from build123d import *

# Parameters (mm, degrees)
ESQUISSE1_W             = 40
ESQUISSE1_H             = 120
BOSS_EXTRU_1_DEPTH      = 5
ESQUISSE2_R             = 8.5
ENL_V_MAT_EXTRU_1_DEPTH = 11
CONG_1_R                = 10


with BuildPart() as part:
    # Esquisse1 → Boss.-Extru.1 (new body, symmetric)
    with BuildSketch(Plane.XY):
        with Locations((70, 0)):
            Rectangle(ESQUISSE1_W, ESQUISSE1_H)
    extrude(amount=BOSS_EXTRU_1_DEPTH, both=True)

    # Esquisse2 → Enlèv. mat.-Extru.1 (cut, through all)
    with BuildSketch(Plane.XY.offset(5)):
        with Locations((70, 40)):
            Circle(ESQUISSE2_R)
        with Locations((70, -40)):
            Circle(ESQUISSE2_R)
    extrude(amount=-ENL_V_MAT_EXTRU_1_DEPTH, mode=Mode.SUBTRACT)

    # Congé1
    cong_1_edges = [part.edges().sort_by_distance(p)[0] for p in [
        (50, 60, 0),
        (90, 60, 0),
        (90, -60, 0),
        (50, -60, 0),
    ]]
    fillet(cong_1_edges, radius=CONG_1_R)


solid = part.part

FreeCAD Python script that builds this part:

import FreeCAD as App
import Part
import Sketcher
from FreeCAD import Vector
Q = App.Units.Quantity


def edges_at(feature, points):
    """Names of the edges that pass closest to the given points."""
    edges = feature.Shape.Edges
    near = lambda p: min(range(len(edges)), key=lambda i: edges[i].distToShape(Part.Vertex(*p))[0])
    return sorted({f"Edge{near(p) + 1}" for p in points})


def add_polygon(sketch, points):
    """Adds a closed chain of lines whose ends are joined by coincident constraints."""
    first, n = sketch.GeometryCount, len(points)
    for a, b in zip(points, points[1:] + points[:1]):
        sketch.addGeometry(Part.LineSegment(App.Vector(*a, 0), App.Vector(*b, 0)), False)
    for i in range(n):
        sketch.addConstraint(Sketcher.Constraint("Coincident", first + i, 2, first + (i + 1) % n, 1))

doc = App.newDocument("Part")
body = doc.addObject("PartDesign::Body", "Body")

sketch1 = doc.addObject("Sketcher::SketchObject", "Sketch")
body.addObject(sketch1)
sketch1.AttachmentSupport = (doc.XY_Plane, [""])
sketch1.MapMode = "FlatFace"
add_polygon(sketch1, [(50, 60), (50, -60), (90, -60), (90, 60)])
sketch1.addConstraint(Sketcher.Constraint("Vertical", 0))
sketch1.addConstraint(Sketcher.Constraint("Horizontal", 1))
sketch1.addConstraint(Sketcher.Constraint("Vertical", 2))
sketch1.addConstraint(Sketcher.Constraint("Horizontal", 3))
sketch1.addConstraint(Sketcher.Constraint("DistanceX", 1, 1, 1, 2, Q("40 mm")))
sketch1.addConstraint(Sketcher.Constraint("DistanceY", 0, 2, 0, 1, Q("120 mm")))
sketch1.addConstraint(Sketcher.Constraint("DistanceX", -1, 1, 0, 2, Q("50 mm")))
sketch1.addConstraint(Sketcher.Constraint("DistanceY", 0, 2, -1, 1, Q("60 mm")))
pad1 = doc.addObject("PartDesign::Pad", "Pad")
body.addObject(pad1)
pad1.Profile = sketch1
pad1.Length = 10
pad1.Midplane = True

sketch2 = doc.addObject("Sketcher::SketchObject", "Sketch001")
body.addObject(sketch2)
sketch2.AttachmentSupport = (doc.XY_Plane, [""])
sketch2.MapMode = "FlatFace"
sketch2.AttachmentOffset = App.Placement(Vector(0, 0, 5), App.Rotation())
sketch2.addGeometry(Part.Circle(Vector(70, 40, 0), Vector(0, 0, 1), 8), False)
sketch2.addGeometry(Part.Circle(Vector(70, -40, 0), Vector(0, 0, 1), 8), False)
sketch2.addConstraint(Sketcher.Constraint("Equal", 0, 1))
sketch2.addConstraint(Sketcher.Constraint("Symmetric", 0, 3, 1, 3, -1))
sketch2.addConstraint(Sketcher.Constraint("Diameter", 0, Q("17 mm")))
sketch2.addConstraint(Sketcher.Constraint("DistanceX", -1, 1, 0, 3, Q("70 mm")))
sketch2.addConstraint(Sketcher.Constraint("DistanceY", -1, 1, 0, 3, Q("40 mm")))
pocket1 = doc.addObject("PartDesign::Pocket", "Pocket")
body.addObject(pocket1)
pocket1.Profile = sketch2
pocket1.Type = "ThroughAll"
doc.recompute()

fillet = doc.addObject("PartDesign::Fillet", "Fillet")
body.addObject(fillet)
fillet.Base = (pocket1, edges_at(pocket1, [
    (50, 60, 0),
    (90, 60, 0),
    (90, -60, 0),
    (50, -60, 0),
]))
fillet.Radius = 10

doc.recompute()
